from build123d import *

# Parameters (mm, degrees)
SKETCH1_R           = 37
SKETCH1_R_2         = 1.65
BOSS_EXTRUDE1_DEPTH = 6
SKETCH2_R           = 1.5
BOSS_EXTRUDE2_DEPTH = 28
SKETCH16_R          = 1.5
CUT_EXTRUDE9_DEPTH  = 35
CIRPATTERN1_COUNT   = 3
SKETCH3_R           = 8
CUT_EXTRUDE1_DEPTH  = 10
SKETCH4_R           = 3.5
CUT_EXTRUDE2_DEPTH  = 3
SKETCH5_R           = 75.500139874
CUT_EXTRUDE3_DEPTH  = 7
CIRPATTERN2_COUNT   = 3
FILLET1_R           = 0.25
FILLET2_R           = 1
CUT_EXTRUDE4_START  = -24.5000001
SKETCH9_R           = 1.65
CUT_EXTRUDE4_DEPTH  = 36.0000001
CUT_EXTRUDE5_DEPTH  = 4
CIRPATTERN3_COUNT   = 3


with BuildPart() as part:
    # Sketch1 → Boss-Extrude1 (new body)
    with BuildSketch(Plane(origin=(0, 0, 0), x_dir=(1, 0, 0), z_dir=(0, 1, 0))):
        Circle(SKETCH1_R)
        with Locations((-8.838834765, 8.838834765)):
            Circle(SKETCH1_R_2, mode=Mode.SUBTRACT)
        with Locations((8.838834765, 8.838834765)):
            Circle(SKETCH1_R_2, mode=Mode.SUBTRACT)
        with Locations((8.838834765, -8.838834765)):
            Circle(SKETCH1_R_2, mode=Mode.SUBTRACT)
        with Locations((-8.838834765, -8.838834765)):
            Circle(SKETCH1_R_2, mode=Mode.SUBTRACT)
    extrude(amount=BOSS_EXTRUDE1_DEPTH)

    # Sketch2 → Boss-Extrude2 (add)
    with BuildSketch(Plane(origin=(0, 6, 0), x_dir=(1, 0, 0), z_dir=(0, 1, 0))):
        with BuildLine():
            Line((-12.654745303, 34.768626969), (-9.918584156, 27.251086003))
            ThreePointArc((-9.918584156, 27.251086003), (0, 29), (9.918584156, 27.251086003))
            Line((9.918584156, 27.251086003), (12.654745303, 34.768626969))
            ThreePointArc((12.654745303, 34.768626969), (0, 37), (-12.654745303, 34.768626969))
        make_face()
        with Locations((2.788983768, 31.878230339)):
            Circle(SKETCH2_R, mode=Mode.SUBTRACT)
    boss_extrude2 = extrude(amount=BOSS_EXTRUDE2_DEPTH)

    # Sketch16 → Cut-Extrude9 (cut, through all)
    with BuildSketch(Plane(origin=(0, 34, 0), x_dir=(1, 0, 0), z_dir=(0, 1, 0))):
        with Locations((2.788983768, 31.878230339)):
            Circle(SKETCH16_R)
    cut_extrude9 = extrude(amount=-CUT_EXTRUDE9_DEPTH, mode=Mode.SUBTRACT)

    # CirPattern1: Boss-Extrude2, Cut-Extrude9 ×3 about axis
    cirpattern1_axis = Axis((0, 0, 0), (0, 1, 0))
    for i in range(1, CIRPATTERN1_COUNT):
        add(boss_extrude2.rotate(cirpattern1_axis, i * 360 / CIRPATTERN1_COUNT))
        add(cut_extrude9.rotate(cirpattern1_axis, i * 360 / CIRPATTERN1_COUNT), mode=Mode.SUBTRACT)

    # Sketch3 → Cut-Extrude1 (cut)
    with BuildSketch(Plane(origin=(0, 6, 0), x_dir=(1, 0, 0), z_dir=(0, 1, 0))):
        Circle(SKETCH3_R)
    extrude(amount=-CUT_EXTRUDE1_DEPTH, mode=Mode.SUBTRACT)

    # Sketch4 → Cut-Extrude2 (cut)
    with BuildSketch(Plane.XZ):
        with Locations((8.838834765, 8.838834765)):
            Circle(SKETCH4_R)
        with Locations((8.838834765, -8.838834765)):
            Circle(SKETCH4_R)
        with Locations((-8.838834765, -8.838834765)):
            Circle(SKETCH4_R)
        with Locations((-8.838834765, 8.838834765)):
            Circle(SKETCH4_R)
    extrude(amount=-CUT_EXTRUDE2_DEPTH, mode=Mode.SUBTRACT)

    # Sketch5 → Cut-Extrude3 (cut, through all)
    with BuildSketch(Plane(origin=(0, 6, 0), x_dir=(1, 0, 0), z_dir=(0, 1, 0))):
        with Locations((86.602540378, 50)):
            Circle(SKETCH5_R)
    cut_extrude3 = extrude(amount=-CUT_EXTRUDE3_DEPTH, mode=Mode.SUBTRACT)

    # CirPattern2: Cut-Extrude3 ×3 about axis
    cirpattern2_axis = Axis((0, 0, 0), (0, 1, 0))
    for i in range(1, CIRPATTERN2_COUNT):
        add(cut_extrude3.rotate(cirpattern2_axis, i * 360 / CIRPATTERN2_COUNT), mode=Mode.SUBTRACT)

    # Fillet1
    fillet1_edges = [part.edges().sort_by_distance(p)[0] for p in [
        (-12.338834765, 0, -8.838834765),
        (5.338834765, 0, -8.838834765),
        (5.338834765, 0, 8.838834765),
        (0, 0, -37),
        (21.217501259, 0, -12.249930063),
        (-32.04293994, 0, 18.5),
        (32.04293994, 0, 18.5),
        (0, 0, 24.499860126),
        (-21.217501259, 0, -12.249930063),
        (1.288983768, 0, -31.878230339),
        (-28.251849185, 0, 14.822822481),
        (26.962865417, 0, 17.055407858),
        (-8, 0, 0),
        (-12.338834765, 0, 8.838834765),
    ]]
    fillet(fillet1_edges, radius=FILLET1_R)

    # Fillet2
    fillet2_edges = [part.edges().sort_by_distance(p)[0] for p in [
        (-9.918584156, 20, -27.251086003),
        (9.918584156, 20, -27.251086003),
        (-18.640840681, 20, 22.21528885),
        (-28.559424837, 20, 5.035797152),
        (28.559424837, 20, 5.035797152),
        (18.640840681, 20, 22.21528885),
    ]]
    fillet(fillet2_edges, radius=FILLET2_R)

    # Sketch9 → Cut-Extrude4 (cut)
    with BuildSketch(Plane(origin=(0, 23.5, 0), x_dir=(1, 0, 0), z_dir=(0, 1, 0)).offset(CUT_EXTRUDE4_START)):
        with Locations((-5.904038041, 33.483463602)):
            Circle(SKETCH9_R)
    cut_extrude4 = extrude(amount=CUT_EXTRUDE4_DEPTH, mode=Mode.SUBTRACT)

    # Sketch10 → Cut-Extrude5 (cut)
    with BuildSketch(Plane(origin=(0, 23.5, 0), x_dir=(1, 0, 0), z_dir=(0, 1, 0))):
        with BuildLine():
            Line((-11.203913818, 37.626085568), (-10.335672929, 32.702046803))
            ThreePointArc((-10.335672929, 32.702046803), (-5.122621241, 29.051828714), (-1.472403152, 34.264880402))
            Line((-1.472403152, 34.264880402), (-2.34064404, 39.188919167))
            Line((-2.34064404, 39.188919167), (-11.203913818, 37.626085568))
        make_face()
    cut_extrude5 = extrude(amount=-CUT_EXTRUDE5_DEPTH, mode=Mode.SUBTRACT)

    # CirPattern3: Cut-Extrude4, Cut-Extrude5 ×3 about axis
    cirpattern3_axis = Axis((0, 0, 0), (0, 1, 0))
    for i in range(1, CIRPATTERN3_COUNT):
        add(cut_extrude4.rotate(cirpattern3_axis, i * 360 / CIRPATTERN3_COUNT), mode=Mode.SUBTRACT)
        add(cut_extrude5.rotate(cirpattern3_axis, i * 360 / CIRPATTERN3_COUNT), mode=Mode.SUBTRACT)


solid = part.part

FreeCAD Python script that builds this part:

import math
import FreeCAD as App
import Part
import Sketcher
from FreeCAD import Vector
Q = App.Units.Quantity


def edges_at(feature, points):
    """Names of the edges that pass closest to the given points."""
    edges = feature.Shape.Edges
    near = lambda p: min(range(len(edges)), key=lambda i: edges[i].distToShape(Part.Vertex(*p))[0])
    return sorted({f"Edge{near(p) + 1}" for p in points})

doc = App.newDocument("Part")
params = doc.addObject("Spreadsheet::Sheet", "Params")
for row, (alias, value) in enumerate([
    ("sketch1_diameter", "74 mm"),
    ("sketch1_diameter2", "3.3 mm"),
    ("pad1_length", "6 mm"),
    ("sketch2_diameter", "3 mm"),
    ("sketch2_radius", "29 mm"),
    ("sketch2_radius2", "37 mm"),
    ("pad2_length", "28 mm"),
    ("sketch3_diameter", "3 mm"),
    ("sketch4_diameter", "16 mm"),
    ("pocket2_length", "10 mm"),
    ("sketch5_diameter", "7 mm"),
    ("pocket3_length", "3 mm"),
    ("fillet_radius", "0.25 mm"),
    ("fillet2_radius", "1 mm"),
    ("sketch7_diameter", "3.3 mm"),
    ("pocket5_length", "36 mm"),
    ("sketch8_radius", "4.5 mm"),
    ("sketch8_length", "5 mm"),
    ("pocket6_length", "4 mm"),
], start=1):
    params.set(f"A{row}", alias)
    params.set(f"B{row}", "=" + value)
    params.setAlias(f"B{row}", alias)

body = doc.addObject("PartDesign::Body", "Body")

sketch1 = body.newObject("Sketcher::SketchObject", "Sketch")
sketch1.AttachmentSupport = (doc.getObject("XZ_Plane"), [""])
sketch1.MapMode = "FlatFace"
sketch1.addGeometry([
    Part.Circle(Vector(0, 0, 0), Vector(0, 0, 1), 37),
    Part.Circle(Vector(-8.8, 8.8, 0), Vector(0, 0, 1), 1.6),
    Part.Circle(Vector(8.8, 8.8, 0), Vector(0, 0, 1), 1.6),
    Part.Circle(Vector(-8.8, -8.8, 0), Vector(0, 0, 1), 1.6),
    Part.Circle(Vector(8.8, -8.8, 0), Vector(0, 0, 1), 1.6),
], False)
sketch1.addConstraint([
    Sketcher.Constraint("Coincident", 0, 3, -1, 1),
    Sketcher.Constraint("Equal", 1, 2),
    Sketcher.Constraint("Equal", 2, 3),
    Sketcher.Constraint("Equal", 3, 4),
    Sketcher.Constraint("Symmetric", 2, 3, 3, 3, -1, 1),
    Sketcher.Constraint("Symmetric", 1, 3, 4, 3, -1, 1),
    Sketcher.Constraint("Symmetric", 1, 3, 2, 3, -2),
    Sketcher.Constraint("Diameter", 0, Q("74 mm")),
    Sketcher.Constraint("Diameter", 1, Q("3.3 mm")),
    Sketcher.Constraint("DistanceX", 1, 3, 2, 3, Q("17.67767 mm")),
    Sketcher.Constraint("DistanceY", 3, 3, 1, 3, Q("17.67767 mm")),
])
sketch1.setExpression("Constraints[7]", "Params.sketch1_diameter")
sketch1.setExpression("Constraints[8]", "Params.sketch1_diameter2")
pad1 = body.newObject("PartDesign::Pad", "Pad")
pad1.Profile = sketch1
pad1.setExpression("Length", "Params.pad1_length")
pad1.Reversed = True

sketch2 = body.newObject("Sketcher::SketchObject", "Sketch001")
sketch2.AttachmentSupport = (doc.getObject("XZ_Plane"), [""])
sketch2.MapMode = "FlatFace"
sketch2.AttachmentOffset = App.Placement(Vector(0, 0, -6), App.Rotation())
sketch2.addGeometry([
    Part.LineSegment(Vector(-12.7, -34.8, 0), Vector(-9.9, -27.3, 0)),
    Part.ArcOfCircle(Part.Circle(Vector(0, 0, 0), Vector(0, 0, 1), 29), math.radians(-110), math.radians(-70)),
    Part.LineSegment(Vector(9.9, -27.3, 0), Vector(12.7, -34.8, 0)),
    Part.ArcOfCircle(Part.Circle(Vector(0, 0, 0), Vector(0, 0, 1), 37), math.radians(-110), math.radians(-70)),
    Part.Circle(Vector(2.8, -31.9, 0), Vector(0, 0, 1), 1.5),
], False)
sketch2.addConstraint([
    Sketcher.Constraint("Coincident", 0, 2, 1, 1),
    Sketcher.Constraint("Coincident", 1, 2, 2, 1),
    Sketcher.Constraint("Coincident", 2, 2, 3, 2),
    Sketcher.Constraint("Coincident", 3, 1, 0, 1),
    Sketcher.Constraint("Coincident", 1, 3, -1, 1),
    Sketcher.Constraint("Coincident", 3, 3, -1, 1),
    Sketcher.Constraint("Horizontal", 0, 2, 1, 2),
    Sketcher.Constraint("Horizontal", 2, 2, 3, 1),
    Sketcher.Constraint("Diameter", 4, Q("3 mm")),
    Sketcher.Constraint("Radius", 1, Q("29 mm")),
    Sketcher.Constraint("Radius", 3, Q("37 mm")),
    Sketcher.Constraint("Angle", 0, Q("70 deg")),
    Sketcher.Constraint("DistanceX", 4, 3, 1, 2, Q("7.1296 mm")),
    Sketcher.Constraint("DistanceY", 4, 3, -1, 1, Q("31.87823 mm")),
    Sketcher.Constraint("DistanceX", 0, 2, 1, 2, Q("19.837168 mm")),
])
sketch2.setExpression("Constraints[8]", "Params.sketch2_diameter")
sketch2.setExpression("Constraints[9]", "Params.sketch2_radius")
sketch2.setExpression("Constraints[10]", "Params.sketch2_radius2")
pad2 = body.newObject("PartDesign::Pad", "Pad001")
pad2.Profile = sketch2
pad2.setExpression("Length", "Params.pad2_length")
pad2.Reversed = True

sketch3 = body.newObject("Sketcher::SketchObject", "Sketch002")
sketch3.AttachmentSupport = (doc.getObject("XZ_Plane"), [""])
sketch3.MapMode = "FlatFace"
sketch3.AttachmentOffset = App.Placement(Vector(0, 0, -34), App.Rotation())
sketch3.addGeometry(Part.Circle(Vector(2.8, -31.9, 0), Vector(0, 0, 1), 1.5), False)
sketch3.addConstraint([
    Sketcher.Constraint("Diameter", 0, Q("3 mm")),
    Sketcher.Constraint("DistanceY", 0, 3, -1, 1, Q("31.87823 mm")),
    Sketcher.Constraint("DistanceX", -1, 1, 0, 3, Q("2.788984 mm")),
])
sketch3.setExpression("Constraints[0]", "Params.sketch3_diameter")
pocket1 = body.newObject("PartDesign::Pocket", "Pocket")
pocket1.Profile = sketch3
pocket1.Type = "ThroughAll"
pocket1.Reversed = True
doc.recompute()

polarpattern = body.newObject("PartDesign::PolarPattern", "PolarPattern")
polarpattern.Originals = [pad2, pocket1]
polarpattern.Axis = (doc.getObject("Y_Axis"), [""])
polarpattern.Angle = 360
polarpattern.Occurrences = 3
body.Tip = polarpattern

sketch4 = body.newObject("Sketcher::SketchObject", "Sketch003")
sketch4.AttachmentSupport = (doc.getObject("XZ_Plane"), [""])
sketch4.MapMode = "FlatFace"
sketch4.AttachmentOffset = App.Placement(Vector(0, 0, -6), App.Rotation())
sketch4.addGeometry(Part.Circle(Vector(0, 0, 0), Vector(0, 0, 1), 8), False)
sketch4.addConstraint([
    Sketcher.Constraint("Coincident", 0, 3, -1, 1),
    Sketcher.Constraint("Diameter", 0, Q("16 mm")),
])
sketch4.setExpression("Constraints[1]", "Params.sketch4_diameter")
pocket2 = body.newObject("PartDesign::Pocket", "Pocket001")
pocket2.Profile = sketch4
pocket2.setExpression("Length", "Params.pocket2_length")
pocket2.Reversed = True

sketch5 = body.newObject("Sketcher::SketchObject", "Sketch004")
sketch5.AttachmentSupport = (doc.getObject("XZ_Plane"), [""])
sketch5.MapMode = "FlatFace"
sketch5.addGeometry([
    Part.Circle(Vector(8.8, 8.8, 0), Vector(0, 0, 1), 3.5),
    Part.Circle(Vector(8.8, -8.8, 0), Vector(0, 0, 1), 3.5),
    Part.Circle(Vector(-8.8, -8.8, 0), Vector(0, 0, 1), 3.5),
    Part.Circle(Vector(-8.8, 8.8, 0), Vector(0, 0, 1), 3.5),
], False)
sketch5.addConstraint([
    Sketcher.Constraint("Equal", 0, 1),
    Sketcher.Constraint("Equal", 1, 2),
    Sketcher.Constraint("Equal", 2, 3),
    Sketcher.Constraint("Symmetric", 0, 3, 2, 3, -1, 1),
    Sketcher.Constraint("Symmetric", 1, 3, 3, 3, -1, 1),
    Sketcher.Constraint("Symmetric", 1, 3, 2, 3, -2),
    Sketcher.Constraint("Diameter", 0, Q("7 mm")),
    Sketcher.Constraint("DistanceY", 1, 3, 0, 3, Q("17.67767 mm")),
    Sketcher.Constraint("DistanceX", 2, 3, 1, 3, Q("17.67767 mm")),
])
sketch5.setExpression("Constraints[6]", "Params.sketch5_diameter")
pocket3 = body.newObject("PartDesign::Pocket", "Pocket002")
pocket3.Profile = sketch5
pocket3.setExpression("Length", "Params.pocket3_length")

sketch6 = body.newObject("Sketcher::SketchObject", "Sketch005")
sketch6.AttachmentSupport = (doc.getObject("XZ_Plane"), [""])
sketch6.MapMode = "FlatFace"
sketch6.AttachmentOffset = App.Placement(Vector(0, 0, -6), App.Rotation())
sketch6.addGeometry(Part.Circle(Vector(87, -50, 0), Vector(0, 0, 1), 76), False)
sketch6.addConstraint([
    Sketcher.Constraint("DistanceY", 0, 3, -1, 1, Q("50 mm")),
    Sketcher.Constraint("Diameter", 0, Q("151.00028 mm")),
    Sketcher.Constraint("DistanceX", -1, 1, 0, 3, Q("86.60254 mm")),
])
pocket4 = body.newObject("PartDesign::Pocket", "Pocket003")
pocket4.Profile = sketch6
pocket4.Type = "ThroughAll"
pocket4.Reversed = True
doc.recompute()

polarpattern2 = body.newObject("PartDesign::PolarPattern", "PolarPattern001")
polarpattern2.Originals = [pocket4]
polarpattern2.Axis = (doc.getObject("Y_Axis"), [""])
polarpattern2.Angle = 360
polarpattern2.Occurrences = 3
body.Tip = polarpattern2
doc.recompute()

fillet = body.newObject("PartDesign::Fillet", "Fillet")
fillet.Base = (polarpattern2, edges_at(polarpattern2, [
    (-12.339, 0, -8.839),
    (5.339, 0, -8.839),
    (5.339, 0, 8.839),
    (0, 0, -37),
    (21.218, 0, -12.25),
    (-32.043, 0, 18.5),
    (32.043, 0, 18.5),
    (0, 0, 24.5),
    (-21.218, 0, -12.25),
    (1.289, 0, -31.878),
    (-28.252, 0, 14.823),
    (26.963, 0, 17.055),
    (-8, 0, 0),
    (-12.339, 0, 8.839),
]))
fillet.setExpression("Radius", "Params.fillet_radius")
doc.recompute()

fillet2 = body.newObject("PartDesign::Fillet", "Fillet001")
fillet2.Base = (fillet, edges_at(fillet, [
    (-9.919, 20, -27.251),
    (9.919, 20, -27.251),
    (-18.641, 20, 22.215),
    (-28.559, 20, 5.036),
    (28.559, 20, 5.036),
    (18.641, 20, 22.215),
]))
fillet2.setExpression("Radius", "Params.fillet2_radius")

sketch7 = body.newObject("Sketcher::SketchObject", "Sketch006")
sketch7.AttachmentSupport = (doc.getObject("XZ_Plane"), [""])
sketch7.MapMode = "FlatFace"
sketch7.AttachmentOffset = App.Placement(Vector(0, 0, 1), App.Rotation())
sketch7.addGeometry(Part.Circle(Vector(-5.9, -33.5, 0), Vector(0, 0, 1), 1.6), False)
sketch7.addConstraint([
    Sketcher.Constraint("Diameter", 0, Q("3.3 mm")),
    Sketcher.Constraint("DistanceX", 0, 3, -1, 1, Q("5.904038 mm")),
    Sketcher.Constraint("DistanceY", 0, 3, -1, 1, Q("33.483464 mm")),
])
sketch7.setExpression("Constraints[0]", "Params.sketch7_diameter")
pocket5 = body.newObject("PartDesign::Pocket", "Pocket004")
pocket5.Profile = sketch7
pocket5.setExpression("Length", "Params.pocket5_length")

sketch8 = body.newObject("Sketcher::SketchObject", "Sketch007")
sketch8.AttachmentSupport = (doc.getObject("XZ_Plane"), [""])
sketch8.MapMode = "FlatFace"
sketch8.AttachmentOffset = App.Placement(Vector(0, 0, -23.5), App.Rotation())
sketch8.addGeometry([
    Part.LineSegment(Vector(-11.2, -37.6, 0), Vector(-10.3, -32.7, 0)),
    Part.ArcOfCircle(Part.Circle(Vector(-5.9, -33.5, 0), Vector(0, 0, 1), 4.5), math.radians(-10), math.radians(170)),
    Part.LineSegment(Vector(-1.5, -34.3, 0), Vector(-2.3, -39.2, 0)),
    Part.LineSegment(Vector(-2.3, -39.2, 0), Vector(-11.2, -37.6, 0)),
], False)
sketch8.addConstraint([
    Sketcher.Constraint("Tangent", 0, 2, 1, 2),
    Sketcher.Constraint("Tangent", 1, 1, 2, 1),
    Sketcher.Constraint("Coincident", 2, 2, 3, 1),
    Sketcher.Constraint("Coincident", 3, 2, 0, 1),
    Sketcher.Constraint("Parallel", 0, 2),
    Sketcher.Constraint("Perpendicular", 2, 3),
    Sketcher.Constraint("Radius", 1, Q("4.5 mm")),
    Sketcher.Constraint("Angle", 0, Q("80 deg")),
    Sketcher.Constraint("Distance", 0, Q("5 mm")),
    Sketcher.Constraint("DistanceX", 1, 3, -1, 1, Q("5.904038 mm")),
    Sketcher.Constraint("DistanceY", 1, 1, -1, 1, Q("34.26488 mm")),
])
sketch8.setExpression("Constraints[6]", "Params.sketch8_radius")
sketch8.setExpression("Constraints[8]", "Params.sketch8_length")
pocket6 = body.newObject("PartDesign::Pocket", "Pocket005")
pocket6.Profile = sketch8
pocket6.setExpression("Length", "Params.pocket6_length")
pocket6.Reversed = True
doc.recompute()

polarpattern3 = body.newObject("PartDesign::PolarPattern", "PolarPattern002")
polarpattern3.Originals = [pocket5, pocket6]
polarpattern3.Axis = (doc.getObject("Y_Axis"), [""])
polarpattern3.Angle = 360
polarpattern3.Occurrences = 3
body.Tip = polarpattern3

doc.recompute()
